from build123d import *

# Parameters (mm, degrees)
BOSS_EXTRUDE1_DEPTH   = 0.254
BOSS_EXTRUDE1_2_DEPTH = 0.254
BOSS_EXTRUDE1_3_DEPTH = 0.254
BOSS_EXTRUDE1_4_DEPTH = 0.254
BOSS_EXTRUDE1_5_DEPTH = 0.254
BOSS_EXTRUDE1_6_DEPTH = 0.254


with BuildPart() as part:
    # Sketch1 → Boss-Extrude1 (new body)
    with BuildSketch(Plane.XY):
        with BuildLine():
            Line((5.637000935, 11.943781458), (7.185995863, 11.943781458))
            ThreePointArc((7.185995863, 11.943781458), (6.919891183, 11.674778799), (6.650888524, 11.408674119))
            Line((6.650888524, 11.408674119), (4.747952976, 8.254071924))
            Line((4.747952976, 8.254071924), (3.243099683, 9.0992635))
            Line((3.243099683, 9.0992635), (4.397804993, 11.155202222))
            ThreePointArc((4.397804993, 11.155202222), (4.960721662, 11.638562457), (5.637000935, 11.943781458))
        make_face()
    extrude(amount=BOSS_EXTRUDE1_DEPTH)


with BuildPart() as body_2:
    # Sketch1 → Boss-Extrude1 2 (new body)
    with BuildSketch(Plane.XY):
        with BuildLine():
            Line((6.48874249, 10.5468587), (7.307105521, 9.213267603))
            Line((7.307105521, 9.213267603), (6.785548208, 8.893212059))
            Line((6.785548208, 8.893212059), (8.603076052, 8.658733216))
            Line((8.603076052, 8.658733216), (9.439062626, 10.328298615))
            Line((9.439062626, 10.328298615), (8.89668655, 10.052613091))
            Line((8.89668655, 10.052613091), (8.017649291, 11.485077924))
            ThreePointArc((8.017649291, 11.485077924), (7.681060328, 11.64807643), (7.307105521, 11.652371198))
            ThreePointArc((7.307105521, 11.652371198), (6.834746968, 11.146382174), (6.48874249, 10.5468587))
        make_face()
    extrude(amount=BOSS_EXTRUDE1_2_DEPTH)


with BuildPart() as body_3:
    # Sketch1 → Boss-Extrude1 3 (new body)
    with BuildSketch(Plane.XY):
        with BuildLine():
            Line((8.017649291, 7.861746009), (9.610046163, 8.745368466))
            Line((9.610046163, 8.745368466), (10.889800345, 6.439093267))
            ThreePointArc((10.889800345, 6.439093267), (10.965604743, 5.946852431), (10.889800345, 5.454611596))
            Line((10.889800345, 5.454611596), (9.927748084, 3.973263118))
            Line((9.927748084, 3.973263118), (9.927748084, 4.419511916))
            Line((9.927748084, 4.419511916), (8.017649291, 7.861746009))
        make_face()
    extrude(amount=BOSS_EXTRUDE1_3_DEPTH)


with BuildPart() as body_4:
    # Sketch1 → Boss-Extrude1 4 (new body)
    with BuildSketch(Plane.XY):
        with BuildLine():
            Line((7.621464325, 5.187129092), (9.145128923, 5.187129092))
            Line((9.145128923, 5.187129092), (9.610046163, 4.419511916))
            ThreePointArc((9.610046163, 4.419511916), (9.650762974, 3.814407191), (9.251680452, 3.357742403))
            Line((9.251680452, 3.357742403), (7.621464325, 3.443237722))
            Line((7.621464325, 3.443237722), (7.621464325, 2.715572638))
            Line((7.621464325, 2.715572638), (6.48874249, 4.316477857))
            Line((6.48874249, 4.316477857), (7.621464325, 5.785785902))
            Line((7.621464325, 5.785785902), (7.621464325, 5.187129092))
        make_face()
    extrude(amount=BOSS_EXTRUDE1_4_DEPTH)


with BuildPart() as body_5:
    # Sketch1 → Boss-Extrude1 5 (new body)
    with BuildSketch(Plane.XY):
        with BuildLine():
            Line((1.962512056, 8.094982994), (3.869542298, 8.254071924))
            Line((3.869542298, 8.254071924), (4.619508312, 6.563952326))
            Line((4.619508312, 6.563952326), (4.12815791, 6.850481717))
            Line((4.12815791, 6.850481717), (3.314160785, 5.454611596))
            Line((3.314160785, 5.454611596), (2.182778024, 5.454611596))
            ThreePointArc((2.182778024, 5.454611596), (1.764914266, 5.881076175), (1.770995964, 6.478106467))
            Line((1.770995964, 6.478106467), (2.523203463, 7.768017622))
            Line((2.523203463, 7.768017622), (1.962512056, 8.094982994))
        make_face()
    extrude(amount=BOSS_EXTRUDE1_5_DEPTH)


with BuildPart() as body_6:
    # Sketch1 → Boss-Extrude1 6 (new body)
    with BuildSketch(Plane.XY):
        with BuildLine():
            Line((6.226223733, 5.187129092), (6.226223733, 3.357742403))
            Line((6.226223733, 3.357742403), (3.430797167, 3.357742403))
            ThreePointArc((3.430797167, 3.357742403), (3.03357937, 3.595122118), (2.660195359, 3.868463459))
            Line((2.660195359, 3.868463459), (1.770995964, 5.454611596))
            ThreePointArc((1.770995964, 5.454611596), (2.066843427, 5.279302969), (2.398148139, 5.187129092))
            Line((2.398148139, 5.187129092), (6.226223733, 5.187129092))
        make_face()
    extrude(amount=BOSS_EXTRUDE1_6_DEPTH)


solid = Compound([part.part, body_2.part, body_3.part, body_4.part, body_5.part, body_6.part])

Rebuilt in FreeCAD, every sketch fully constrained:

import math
import FreeCAD as App
import Part
import Sketcher
from FreeCAD import Vector
Q = App.Units.Quantity

doc = App.newDocument("Part")
body = doc.addObject("PartDesign::Body", "Body")

# Sketch on XY plane
sketch1 = doc.addObject("Sketcher::SketchObject", "Sketch")
body.addObject(sketch1)
sketch1.AttachmentSupport = (doc.XY_Plane, [""])
sketch1.MapMode = "FlatFace"
sketch1.addGeometry(Part.LineSegment(Vector(7.2, 11.9, 0), Vector(5.6, 11.9, 0)), False)
sketch1.addGeometry(Part.ArcOfCircle(Part.Circle(Vector(6.4, 9.4, 0), Vector(0, 0, 1), 2.6), math.radians(106), math.radians(139)), False)
sketch1.addGeometry(Part.LineSegment(Vector(4.4, 11.2, 0), Vector(3.2, 9.1, 0)), False)
sketch1.addGeometry(Part.LineSegment(Vector(3.2, 9.1, 0), Vector(4.7, 8.3, 0)), False)
sketch1.addGeometry(Part.LineSegment(Vector(4.7, 8.3, 0), Vector(6.7, 11.4, 0)), False)
sketch1.addGeometry(Part.ArcOfCircle(Part.Circle(Vector(-17.8, 36.4, 0), Vector(0, 0, 1), 34.9), math.radians(-45.62), math.radians(-44.38)), False)
sketch1.addConstraint(Sketcher.Constraint("Coincident", 0, 2, 1, 1))
sketch1.addConstraint(Sketcher.Constraint("Coincident", 1, 2, 2, 1))
sketch1.addConstraint(Sketcher.Constraint("Coincident", 2, 2, 3, 1))
sketch1.addConstraint(Sketcher.Constraint("Coincident", 3, 2, 4, 1))
sketch1.addConstraint(Sketcher.Constraint("Coincident", 4, 2, 5, 1))
sketch1.addConstraint(Sketcher.Constraint("Coincident", 5, 2, 0, 1))
sketch1.addConstraint(Sketcher.Constraint("Horizontal", 0))
sketch1.addConstraint(Sketcher.Constraint("Perpendicular", 2, 3))
sketch1.addConstraint(Sketcher.Constraint("Radius", 1, Q("2.607179 mm")))
sketch1.addConstraint(Sketcher.Constraint("Radius", 5, Q("34.934483 mm")))
sketch1.addConstraint(Sketcher.Constraint("DistanceX", -1, 1, 0, 2, Q("5.637001 mm")))
sketch1.addConstraint(Sketcher.Constraint("DistanceX", -1, 1, 2, 2, Q("3.2431 mm")))
sketch1.addConstraint(Sketcher.Constraint("DistanceX", 3, 2, 1, 3, Q("1.612499 mm")))
sketch1.addConstraint(Sketcher.Constraint("Distance", 3, Q("1.725958 mm")))
sketch1.addConstraint(Sketcher.Constraint("Distance", 4, Q("3.684112 mm")))
sketch1.addConstraint(Sketcher.Constraint("DistanceX", 0, 2, 0, 1, Q("1.548995 mm")))
sketch1.addConstraint(Sketcher.Constraint("DistanceX", -1, 1, 1, 3, Q("6.360452 mm")))
sketch1.addConstraint(Sketcher.Constraint("DistanceX", 5, 3, -1, 1, Q("17.782519 mm")))
sketch1.addConstraint(Sketcher.Constraint("DistanceY", -1, 1, 5, 3, Q("36.377189 mm")))
sketch1.addConstraint(Sketcher.Constraint("DistanceY", -1, 1, 3, 2, Q("8.254072 mm")))
pad1 = doc.addObject("PartDesign::Pad", "Pad")
body.addObject(pad1)
pad1.Profile = sketch1
pad1.Length = Q("0.01 in")
body2 = doc.addObject("PartDesign::Body", "Body001")

# Sketch on XY plane
sketch2 = doc.addObject("Sketcher::SketchObject", "Sketch001")
body2.addObject(sketch2)
sketch2.AttachmentSupport = (doc.getObject("XY_Plane001"), [""])
sketch2.MapMode = "FlatFace"
sketch2.addGeometry(Part.LineSegment(Vector(6.5, 10.5, 0), Vector(7.3, 9.2, 0)), False)
sketch2.addGeometry(Part.LineSegment(Vector(7.3, 9.2, 0), Vector(6.8, 8.9, 0)), False)
sketch2.addGeometry(Part.LineSegment(Vector(6.8, 8.9, 0), Vector(8.6, 8.7, 0)), False)
sketch2.addGeometry(Part.LineSegment(Vector(8.6, 8.7, 0), Vector(9.4, 10.3, 0)), False)
sketch2.addGeometry(Part.LineSegment(Vector(9.4, 10.3, 0), Vector(8.9, 10.1, 0)), False)
sketch2.addGeometry(Part.LineSegment(Vector(8.9, 10.1, 0), Vector(8, 11.5, 0)), False)
sketch2.addGeometry(Part.ArcOfCircle(Part.Circle(Vector(7.5, 10.8, 0), Vector(0, 0, 1), 0.9), math.radians(52), math.radians(102)), False)
sketch2.addGeometry(Part.ArcOfCircle(Part.Circle(Vector(9.3, 9.3, 0), Vector(0, 0, 1), 3), math.radians(130), math.radians(157)), False)
sketch2.addConstraint(Sketcher.Constraint("Coincident", 0, 2, 1, 1))
sketch2.addConstraint(Sketcher.Constraint("Coincident", 1, 2, 2, 1))
sketch2.addConstraint(Sketcher.Constraint("Coincident", 2, 2, 3, 1))
sketch2.addConstraint(Sketcher.Constraint("Coincident", 3, 2, 4, 1))
sketch2.addConstraint(Sketcher.Constraint("Coincident", 4, 2, 5, 1))
sketch2.addConstraint(Sketcher.Constraint("Coincident", 5, 2, 6, 1))
sketch2.addConstraint(Sketcher.Constraint("Coincident", 6, 2, 7, 1))
sketch2.addConstraint(Sketcher.Constraint("Coincident", 7, 2, 0, 1))
sketch2.addConstraint(Sketcher.Constraint("Perpendicular", 0, 1))
sketch2.addConstraint(Sketcher.Constraint("Perpendicular", 1, 5))
sketch2.addConstraint(Sketcher.Constraint("Vertical", 0, 2, 6, 2))
sketch2.addConstraint(Sketcher.Constraint("Radius", 6, Q("0.857813 mm")))
sketch2.addConstraint(Sketcher.Constraint("Radius", 7, Q("3.047876 mm")))
sketch2.addConstraint(Sketcher.Constraint("DistanceY", -1, 1, 3, 2, Q("10.328299 mm")))
sketch2.addConstraint(Sketcher.Constraint("DistanceY", 0, 2, 7, 3, Q("0.119701 mm")))
sketch2.addConstraint(Sketcher.Constraint("Distance", 1, Q("0.611929 mm")))
sketch2.addConstraint(Sketcher.Constraint("Distance", 2, Q("1.83259 mm")))
sketch2.addConstraint(Sketcher.Constraint("Distance", 3, Q("1.86717 mm")))
sketch2.addConstraint(Sketcher.Constraint("Distance", 4, Q("0.60842 mm")))
sketch2.addConstraint(Sketcher.Constraint("DistanceX", -1, 1, 6, 3, Q("7.484469 mm")))
sketch2.addConstraint(Sketcher.Constraint("DistanceY", -1, 1, 7, 3, Q("9.332968 mm")))
sketch2.addConstraint(Sketcher.Constraint("DistanceX", -1, 1, 1, 2, Q("6.785548 mm")))
sketch2.addConstraint(Sketcher.Constraint("DistanceX", -1, 1, 5, 2, Q("8.017649 mm")))
sketch2.addConstraint(Sketcher.Constraint("DistanceY", -1, 1, 6, 2, Q("11.652371 mm")))
sketch2.addConstraint(Sketcher.Constraint("DistanceY", -1, 1, 7, 2, Q("10.546859 mm")))
sketch2.addConstraint(Sketcher.Constraint("DistanceX", 2, 2, 7, 3, Q("0.681381 mm")))
pad2 = doc.addObject("PartDesign::Pad", "Pad001")
body2.addObject(pad2)
pad2.Profile = sketch2
pad2.Length = Q("0.01 in")
body3 = doc.addObject("PartDesign::Body", "Body002")

# Sketch on XY plane
sketch3 = doc.addObject("Sketcher::SketchObject", "Sketch002")
body3.addObject(sketch3)
sketch3.AttachmentSupport = (doc.getObject("XY_Plane002"), [""])
sketch3.MapMode = "FlatFace"
sketch3.addGeometry(Part.LineSegment(Vector(9.61, 8.75, 0), Vector(8.02, 7.86, 0)), False)
sketch3.addGeometry(Part.LineSegment(Vector(8.02, 7.86, 0), Vector(9.93, 4.42, 0)), False)
sketch3.addGeometry(Part.LineSegment(Vector(9.93, 4.42, 0), Vector(9.93, 3.97, 0)), False)
sketch3.addGeometry(Part.LineSegment(Vector(9.93, 3.97, 0), Vector(10.89, 5.45, 0)), False)
sketch3.addGeometry(Part.ArcOfCircle(Part.Circle(Vector(9.33, 5.95, 0), Vector(0, 0, 1), 1.64), math.radians(-18), math.radians(18)), False)
sketch3.addGeometry(Part.LineSegment(Vector(10.89, 6.44, 0), Vector(9.61, 8.75, 0)), False)
sketch3.addConstraint(Sketcher.Constraint("Coincident", 0, 2, 1, 1))
sketch3.addConstraint(Sketcher.Constraint("Coincident", 1, 2, 2, 1))
sketch3.addConstraint(Sketcher.Constraint("Coincident", 2, 2, 3, 1))
sketch3.addConstraint(Sketcher.Constraint("Coincident", 3, 2, 4, 1))
sketch3.addConstraint(Sketcher.Constraint("Coincident", 4, 2, 5, 1))
sketch3.addConstraint(Sketcher.Constraint("Coincident", 5, 2, 0, 1))
sketch3.addConstraint(Sketcher.Constraint("Vertical", 2))
sketch3.addConstraint(Sketcher.Constraint("Perpendicular", 0, 1))
sketch3.addConstraint(Sketcher.Constraint("Parallel", 1, 5))
sketch3.addConstraint(Sketcher.Constraint("Vertical", 3, 2, 4, 2))
sketch3.addConstraint(Sketcher.Constraint("Radius", 4, Q("1.636101 mm")))
sketch3.addConstraint(Sketcher.Constraint("DistanceY", 2, 2, 2, 1, Q("0.446249 mm")))
sketch3.addConstraint(Sketcher.Constraint("DistanceX", -1, 1, 3, 2, Q("10.8898 mm")))
sketch3.addConstraint(Sketcher.Constraint("DistanceX", 0, 2, 1, 2, Q("1.910099 mm")))
sketch3.addConstraint(Sketcher.Constraint("DistanceY", 1, 2, 3, 2, Q("1.0351 mm")))
sketch3.addConstraint(Sketcher.Constraint("DistanceX", 5, 2, 1, 2, Q("0.317702 mm")))
sketch3.addConstraint(Sketcher.Constraint("Distance", 0, Q("1.821131 mm")))
sketch3.addConstraint(Sketcher.Constraint("Distance", 5, Q("2.637551 mm")))
sketch3.addConstraint(Sketcher.Constraint("DistanceY", -1, 1, 1, 2, Q("4.419512 mm")))
pad3 = doc.addObject("PartDesign::Pad", "Pad002")
body3.addObject(pad3)
pad3.Profile = sketch3
pad3.Length = Q("0.01 in")
body4 = doc.addObject("PartDesign::Body", "Body003")

# Sketch on XY plane
sketch4 = doc.addObject("Sketcher::SketchObject", "Sketch003")
body4.addObject(sketch4)
sketch4.AttachmentSupport = (doc.getObject("XY_Plane003"), [""])
sketch4.MapMode = "FlatFace"
sketch4.addGeometry(Part.LineSegment(Vector(9.1, 5.2, 0), Vector(7.6, 5.2, 0)), False)
sketch4.addGeometry(Part.LineSegment(Vector(7.6, 5.2, 0), Vector(7.6, 5.8, 0)), False)
sketch4.addGeometry(Part.LineSegment(Vector(7.6, 5.8, 0), Vector(6.5, 4.3, 0)), False)
sketch4.addGeometry(Part.LineSegment(Vector(6.5, 4.3, 0), Vector(7.6, 2.7, 0)), False)
sketch4.addGeometry(Part.LineSegment(Vector(7.6, 2.7, 0), Vector(7.6, 3.4, 0)), False)
sketch4.addGeometry(Part.LineSegment(Vector(7.6, 3.4, 0), Vector(9.3, 3.4, 0)), False)
sketch4.addGeometry(Part.ArcOfCircle(Part.Circle(Vector(8.9, 4.1, 0), Vector(0, 0, 1), 0.8), math.radians(-64), math.radians(26)), False)
sketch4.addGeometry(Part.LineSegment(Vector(9.6, 4.4, 0), Vector(9.1, 5.2, 0)), False)
sketch4.addConstraint(Sketcher.Constraint("Coincident", 0, 2, 1, 1))
sketch4.addConstraint(Sketcher.Constraint("Coincident", 1, 2, 2, 1))
sketch4.addConstraint(Sketcher.Constraint("Coincident", 2, 2, 3, 1))
sketch4.addConstraint(Sketcher.Constraint("Coincident", 3, 2, 4, 1))
sketch4.addConstraint(Sketcher.Constraint("Coincident", 4, 2, 5, 1))
sketch4.addConstraint(Sketcher.Constraint("Coincident", 5, 2, 6, 1))
sketch4.addConstraint(Sketcher.Constraint("Coincident", 6, 2, 7, 1))
sketch4.addConstraint(Sketcher.Constraint("Coincident", 7, 2, 0, 1))
sketch4.addConstraint(Sketcher.Constraint("Horizontal", 0))
sketch4.addConstraint(Sketcher.Constraint("Vertical", 1))
sketch4.addConstraint(Sketcher.Constraint("Vertical", 4))
sketch4.addConstraint(Sketcher.Constraint("Vertical", 1, 2, 3, 2))
sketch4.addConstraint(Sketcher.Constraint("Radius", 6, Q("0.792395 mm")))
sketch4.addConstraint(Sketcher.Constraint("DistanceX", 6, 3, 5, 2, Q("0.351702 mm")))
sketch4.addConstraint(Sketcher.Constraint("DistanceY", 6, 3, 6, 2, Q("0.351702 mm")))
sketch4.addConstraint(Sketcher.Constraint("Distance", 3, Q("1.961111 mm")))
sketch4.addConstraint(Sketcher.Constraint("Distance", 7, Q("0.897432 mm")))
sketch4.addConstraint(Sketcher.Constraint("DistanceX", 0, 2, 0, 1, Q("1.523665 mm")))
sketch4.addConstraint(Sketcher.Constraint("DistanceY", 1, 1, 1, 2, Q("0.598657 mm")))
sketch4.addConstraint(Sketcher.Constraint("DistanceY", 4, 1, 4, 2, Q("0.727665 mm")))
sketch4.addConstraint(Sketcher.Constraint("DistanceX", -1, 1, 6, 3, Q("8.899979 mm")))
sketch4.addConstraint(Sketcher.Constraint("DistanceY", -1, 1, 6, 3, Q("4.06781 mm")))
sketch4.addConstraint(Sketcher.Constraint("DistanceY", -1, 1, 0, 2, Q("5.187129 mm")))
sketch4.addConstraint(Sketcher.Constraint("DistanceX", 2, 2, 0, 2, Q("1.132722 mm")))
sketch4.addConstraint(Sketcher.Constraint("DistanceY", 2, 2, 0, 2, Q("0.870651 mm")))
pad4 = doc.addObject("PartDesign::Pad", "Pad003")
body4.addObject(pad4)
pad4.Profile = sketch4
pad4.Length = Q("0.01 in")
body5 = doc.addObject("PartDesign::Body", "Body004")

# Sketch on XY plane
sketch5 = doc.addObject("Sketcher::SketchObject", "Sketch004")
body5.addObject(sketch5)
sketch5.AttachmentSupport = (doc.getObject("XY_Plane004"), [""])
sketch5.MapMode = "FlatFace"
sketch5.addGeometry(Part.LineSegment(Vector(3.9, 8.3, 0), Vector(2, 8.1, 0)), False)
sketch5.addGeometry(Part.LineSegment(Vector(2, 8.1, 0), Vector(2.5, 7.8, 0)), False)
sketch5.addGeometry(Part.LineSegment(Vector(2.5, 7.8, 0), Vector(1.8, 6.5, 0)), False)
sketch5.addGeometry(Part.ArcOfCircle(Part.Circle(Vector(2.5, 6.2, 0), Vector(0, 0, 1), 0.8), math.radians(157), math.radians(247)), False)
sketch5.addGeometry(Part.LineSegment(Vector(2.2, 5.5, 0), Vector(3.3, 5.5, 0)), False)
sketch5.addGeometry(Part.LineSegment(Vector(3.3, 5.5, 0), Vector(4.1, 6.9, 0)), False)
sketch5.addGeometry(Part.LineSegment(Vector(4.1, 6.9, 0), Vector(4.6, 6.6, 0)), False)
sketch5.addGeometry(Part.LineSegment(Vector(4.6, 6.6, 0), Vector(3.9, 8.3, 0)), False)
sketch5.addConstraint(Sketcher.Constraint("Coincident", 0, 2, 1, 1))
sketch5.addConstraint(Sketcher.Constraint("Coincident", 1, 2, 2, 1))
sketch5.addConstraint(Sketcher.Constraint("Coincident", 2, 2, 3, 1))
sketch5.addConstraint(Sketcher.Constraint("Coincident", 3, 2, 4, 1))
sketch5.addConstraint(Sketcher.Constraint("Coincident", 4, 2, 5, 1))
sketch5.addConstraint(Sketcher.Constraint("Coincident", 5, 2, 6, 1))
sketch5.addConstraint(Sketcher.Constraint("Coincident", 6, 2, 7, 1))
sketch5.addConstraint(Sketcher.Constraint("Coincident", 7, 2, 0, 1))
sketch5.addConstraint(Sketcher.Constraint("Horizontal", 4))
sketch5.addConstraint(Sketcher.Constraint("Perpendicular", 1, 2))
sketch5.addConstraint(Sketcher.Constraint("Parallel", 2, 5))
sketch5.addConstraint(Sketcher.Constraint("Perpendicular", 5, 6))
sketch5.addConstraint(Sketcher.Constraint("Radius", 3, Q("0.780098 mm")))
sketch5.addConstraint(Sketcher.Constraint("DistanceY", -1, 1, 0, 2, Q("0.3187001 in")))
sketch5.addConstraint(Sketcher.Constraint("Distance", 1, Q("0.649062 mm")))
sketch5.addConstraint(Sketcher.Constraint("Distance", 6, Q("0.568792 mm")))
sketch5.addConstraint(Sketcher.Constraint("Distance", 7, Q("1.849041 mm")))
sketch5.addConstraint(Sketcher.Constraint("DistanceX", 4, 1, 4, 2, Q("1.131383 mm")))
sketch5.addConstraint(Sketcher.Constraint("DistanceY", -1, 1, 3, 3, Q("6.17225 mm")))
sketch5.addConstraint(Sketcher.Constraint("DistanceX", -1, 1, 3, 2, Q("2.182778 mm")))
sketch5.addConstraint(Sketcher.Constraint("DistanceY", -1, 1, 3, 2, Q("5.454612 mm")))
sketch5.addConstraint(Sketcher.Constraint("DistanceY", -1, 1, 5, 2, Q("6.850482 mm")))
sketch5.addConstraint(Sketcher.Constraint("DistanceX", -1, 1, 6, 2, Q("4.619508 mm")))
sketch5.addConstraint(Sketcher.Constraint("DistanceY", -1, 1, 7, 2, Q("8.254072 mm")))
sketch5.addConstraint(Sketcher.Constraint("DistanceX", 3, 3, 1, 2, Q("0.034569 mm")))
pad5 = doc.addObject("PartDesign::Pad", "Pad004")
body5.addObject(pad5)
pad5.Profile = sketch5
pad5.Length = Q("0.01 in")
body6 = doc.addObject("PartDesign::Body", "Body005")

# Sketch on XY plane
sketch6 = doc.addObject("Sketcher::SketchObject", "Sketch005")
body6.addObject(sketch6)
sketch6.AttachmentSupport = (doc.getObject("XY_Plane005"), [""])
sketch6.MapMode = "FlatFace"
sketch6.addGeometry(Part.LineSegment(Vector(6.2, 3.4, 0), Vector(6.2, 5.2, 0)), False)
sketch6.addGeometry(Part.LineSegment(Vector(6.2, 5.2, 0), Vector(2.4, 5.2, 0)), False)
sketch6.addGeometry(Part.ArcOfCircle(Part.Circle(Vector(2.6, 6.5, 0), Vector(0, 0, 1), 1.3), math.radians(-128), math.radians(-98)), False)
sketch6.addGeometry(Part.LineSegment(Vector(1.8, 5.5, 0), Vector(2.7, 3.9, 0)), False)
sketch6.addGeometry(Part.ArcOfCircle(Part.Circle(Vector(5.8, 7.7, 0), Vector(0, 0, 1), 5), math.radians(-128.88), math.radians(-118.19)), False)
sketch6.addGeometry(Part.LineSegment(Vector(3.4, 3.4, 0), Vector(6.2, 3.4, 0)), False)
sketch6.addConstraint(Sketcher.Constraint("Coincident", 0, 2, 1, 1))
sketch6.addConstraint(Sketcher.Constraint("Coincident", 1, 2, 2, 2))
sketch6.addConstraint(Sketcher.Constraint("Coincident", 2, 1, 3, 1))
sketch6.addConstraint(Sketcher.Constraint("Coincident", 3, 2, 4, 1))
sketch6.addConstraint(Sketcher.Constraint("Coincident", 4, 2, 5, 1))
sketch6.addConstraint(Sketcher.Constraint("Coincident", 5, 2, 0, 1))
sketch6.addConstraint(Sketcher.Constraint("Vertical", 0))
sketch6.addConstraint(Sketcher.Constraint("Horizontal", 1))
sketch6.addConstraint(Sketcher.Constraint("Horizontal", 5))
sketch6.addConstraint(Sketcher.Constraint("Radius", 4, Q("4.963328 mm")))
sketch6.addConstraint(Sketcher.Constraint("Radius", 2, Q("1.308458 mm")))
sketch6.addConstraint(Sketcher.Constraint("DistanceY", 2, 1, 4, 3, Q("2.277701 mm")))
sketch6.addConstraint(Sketcher.Constraint("DistanceX", 2, 1, 3, 2, Q("0.889199 mm")))
sketch6.addConstraint(Sketcher.Constraint("DistanceY", 3, 2, 2, 3, Q("2.614401 mm")))
sketch6.addConstraint(Sketcher.Constraint("DistanceX", 3, 2, 4, 2, Q("0.770602 mm")))
sketch6.addConstraint(Sketcher.Constraint("Distance", 3, Q("1.81839 mm")))
sketch6.addConstraint(Sketcher.Constraint("DistanceX", 1, 2, 1, 1, Q("3.828076 mm")))
sketch6.addConstraint(Sketcher.Constraint("DistanceX", 5, 1, 5, 2, Q("2.795427 mm")))
sketch6.addConstraint(Sketcher.Constraint("DistanceY", -1, 1, 0, 2, Q("5.187129 mm")))
sketch6.addConstraint(Sketcher.Constraint("DistanceX", -1, 1, 1, 2, Q("2.398148 mm")))
pad6 = doc.addObject("PartDesign::Pad", "Pad005")
body6.addObject(pad6)
pad6.Profile = sketch6
pad6.Length = Q("0.01 in")

doc.recompute()
